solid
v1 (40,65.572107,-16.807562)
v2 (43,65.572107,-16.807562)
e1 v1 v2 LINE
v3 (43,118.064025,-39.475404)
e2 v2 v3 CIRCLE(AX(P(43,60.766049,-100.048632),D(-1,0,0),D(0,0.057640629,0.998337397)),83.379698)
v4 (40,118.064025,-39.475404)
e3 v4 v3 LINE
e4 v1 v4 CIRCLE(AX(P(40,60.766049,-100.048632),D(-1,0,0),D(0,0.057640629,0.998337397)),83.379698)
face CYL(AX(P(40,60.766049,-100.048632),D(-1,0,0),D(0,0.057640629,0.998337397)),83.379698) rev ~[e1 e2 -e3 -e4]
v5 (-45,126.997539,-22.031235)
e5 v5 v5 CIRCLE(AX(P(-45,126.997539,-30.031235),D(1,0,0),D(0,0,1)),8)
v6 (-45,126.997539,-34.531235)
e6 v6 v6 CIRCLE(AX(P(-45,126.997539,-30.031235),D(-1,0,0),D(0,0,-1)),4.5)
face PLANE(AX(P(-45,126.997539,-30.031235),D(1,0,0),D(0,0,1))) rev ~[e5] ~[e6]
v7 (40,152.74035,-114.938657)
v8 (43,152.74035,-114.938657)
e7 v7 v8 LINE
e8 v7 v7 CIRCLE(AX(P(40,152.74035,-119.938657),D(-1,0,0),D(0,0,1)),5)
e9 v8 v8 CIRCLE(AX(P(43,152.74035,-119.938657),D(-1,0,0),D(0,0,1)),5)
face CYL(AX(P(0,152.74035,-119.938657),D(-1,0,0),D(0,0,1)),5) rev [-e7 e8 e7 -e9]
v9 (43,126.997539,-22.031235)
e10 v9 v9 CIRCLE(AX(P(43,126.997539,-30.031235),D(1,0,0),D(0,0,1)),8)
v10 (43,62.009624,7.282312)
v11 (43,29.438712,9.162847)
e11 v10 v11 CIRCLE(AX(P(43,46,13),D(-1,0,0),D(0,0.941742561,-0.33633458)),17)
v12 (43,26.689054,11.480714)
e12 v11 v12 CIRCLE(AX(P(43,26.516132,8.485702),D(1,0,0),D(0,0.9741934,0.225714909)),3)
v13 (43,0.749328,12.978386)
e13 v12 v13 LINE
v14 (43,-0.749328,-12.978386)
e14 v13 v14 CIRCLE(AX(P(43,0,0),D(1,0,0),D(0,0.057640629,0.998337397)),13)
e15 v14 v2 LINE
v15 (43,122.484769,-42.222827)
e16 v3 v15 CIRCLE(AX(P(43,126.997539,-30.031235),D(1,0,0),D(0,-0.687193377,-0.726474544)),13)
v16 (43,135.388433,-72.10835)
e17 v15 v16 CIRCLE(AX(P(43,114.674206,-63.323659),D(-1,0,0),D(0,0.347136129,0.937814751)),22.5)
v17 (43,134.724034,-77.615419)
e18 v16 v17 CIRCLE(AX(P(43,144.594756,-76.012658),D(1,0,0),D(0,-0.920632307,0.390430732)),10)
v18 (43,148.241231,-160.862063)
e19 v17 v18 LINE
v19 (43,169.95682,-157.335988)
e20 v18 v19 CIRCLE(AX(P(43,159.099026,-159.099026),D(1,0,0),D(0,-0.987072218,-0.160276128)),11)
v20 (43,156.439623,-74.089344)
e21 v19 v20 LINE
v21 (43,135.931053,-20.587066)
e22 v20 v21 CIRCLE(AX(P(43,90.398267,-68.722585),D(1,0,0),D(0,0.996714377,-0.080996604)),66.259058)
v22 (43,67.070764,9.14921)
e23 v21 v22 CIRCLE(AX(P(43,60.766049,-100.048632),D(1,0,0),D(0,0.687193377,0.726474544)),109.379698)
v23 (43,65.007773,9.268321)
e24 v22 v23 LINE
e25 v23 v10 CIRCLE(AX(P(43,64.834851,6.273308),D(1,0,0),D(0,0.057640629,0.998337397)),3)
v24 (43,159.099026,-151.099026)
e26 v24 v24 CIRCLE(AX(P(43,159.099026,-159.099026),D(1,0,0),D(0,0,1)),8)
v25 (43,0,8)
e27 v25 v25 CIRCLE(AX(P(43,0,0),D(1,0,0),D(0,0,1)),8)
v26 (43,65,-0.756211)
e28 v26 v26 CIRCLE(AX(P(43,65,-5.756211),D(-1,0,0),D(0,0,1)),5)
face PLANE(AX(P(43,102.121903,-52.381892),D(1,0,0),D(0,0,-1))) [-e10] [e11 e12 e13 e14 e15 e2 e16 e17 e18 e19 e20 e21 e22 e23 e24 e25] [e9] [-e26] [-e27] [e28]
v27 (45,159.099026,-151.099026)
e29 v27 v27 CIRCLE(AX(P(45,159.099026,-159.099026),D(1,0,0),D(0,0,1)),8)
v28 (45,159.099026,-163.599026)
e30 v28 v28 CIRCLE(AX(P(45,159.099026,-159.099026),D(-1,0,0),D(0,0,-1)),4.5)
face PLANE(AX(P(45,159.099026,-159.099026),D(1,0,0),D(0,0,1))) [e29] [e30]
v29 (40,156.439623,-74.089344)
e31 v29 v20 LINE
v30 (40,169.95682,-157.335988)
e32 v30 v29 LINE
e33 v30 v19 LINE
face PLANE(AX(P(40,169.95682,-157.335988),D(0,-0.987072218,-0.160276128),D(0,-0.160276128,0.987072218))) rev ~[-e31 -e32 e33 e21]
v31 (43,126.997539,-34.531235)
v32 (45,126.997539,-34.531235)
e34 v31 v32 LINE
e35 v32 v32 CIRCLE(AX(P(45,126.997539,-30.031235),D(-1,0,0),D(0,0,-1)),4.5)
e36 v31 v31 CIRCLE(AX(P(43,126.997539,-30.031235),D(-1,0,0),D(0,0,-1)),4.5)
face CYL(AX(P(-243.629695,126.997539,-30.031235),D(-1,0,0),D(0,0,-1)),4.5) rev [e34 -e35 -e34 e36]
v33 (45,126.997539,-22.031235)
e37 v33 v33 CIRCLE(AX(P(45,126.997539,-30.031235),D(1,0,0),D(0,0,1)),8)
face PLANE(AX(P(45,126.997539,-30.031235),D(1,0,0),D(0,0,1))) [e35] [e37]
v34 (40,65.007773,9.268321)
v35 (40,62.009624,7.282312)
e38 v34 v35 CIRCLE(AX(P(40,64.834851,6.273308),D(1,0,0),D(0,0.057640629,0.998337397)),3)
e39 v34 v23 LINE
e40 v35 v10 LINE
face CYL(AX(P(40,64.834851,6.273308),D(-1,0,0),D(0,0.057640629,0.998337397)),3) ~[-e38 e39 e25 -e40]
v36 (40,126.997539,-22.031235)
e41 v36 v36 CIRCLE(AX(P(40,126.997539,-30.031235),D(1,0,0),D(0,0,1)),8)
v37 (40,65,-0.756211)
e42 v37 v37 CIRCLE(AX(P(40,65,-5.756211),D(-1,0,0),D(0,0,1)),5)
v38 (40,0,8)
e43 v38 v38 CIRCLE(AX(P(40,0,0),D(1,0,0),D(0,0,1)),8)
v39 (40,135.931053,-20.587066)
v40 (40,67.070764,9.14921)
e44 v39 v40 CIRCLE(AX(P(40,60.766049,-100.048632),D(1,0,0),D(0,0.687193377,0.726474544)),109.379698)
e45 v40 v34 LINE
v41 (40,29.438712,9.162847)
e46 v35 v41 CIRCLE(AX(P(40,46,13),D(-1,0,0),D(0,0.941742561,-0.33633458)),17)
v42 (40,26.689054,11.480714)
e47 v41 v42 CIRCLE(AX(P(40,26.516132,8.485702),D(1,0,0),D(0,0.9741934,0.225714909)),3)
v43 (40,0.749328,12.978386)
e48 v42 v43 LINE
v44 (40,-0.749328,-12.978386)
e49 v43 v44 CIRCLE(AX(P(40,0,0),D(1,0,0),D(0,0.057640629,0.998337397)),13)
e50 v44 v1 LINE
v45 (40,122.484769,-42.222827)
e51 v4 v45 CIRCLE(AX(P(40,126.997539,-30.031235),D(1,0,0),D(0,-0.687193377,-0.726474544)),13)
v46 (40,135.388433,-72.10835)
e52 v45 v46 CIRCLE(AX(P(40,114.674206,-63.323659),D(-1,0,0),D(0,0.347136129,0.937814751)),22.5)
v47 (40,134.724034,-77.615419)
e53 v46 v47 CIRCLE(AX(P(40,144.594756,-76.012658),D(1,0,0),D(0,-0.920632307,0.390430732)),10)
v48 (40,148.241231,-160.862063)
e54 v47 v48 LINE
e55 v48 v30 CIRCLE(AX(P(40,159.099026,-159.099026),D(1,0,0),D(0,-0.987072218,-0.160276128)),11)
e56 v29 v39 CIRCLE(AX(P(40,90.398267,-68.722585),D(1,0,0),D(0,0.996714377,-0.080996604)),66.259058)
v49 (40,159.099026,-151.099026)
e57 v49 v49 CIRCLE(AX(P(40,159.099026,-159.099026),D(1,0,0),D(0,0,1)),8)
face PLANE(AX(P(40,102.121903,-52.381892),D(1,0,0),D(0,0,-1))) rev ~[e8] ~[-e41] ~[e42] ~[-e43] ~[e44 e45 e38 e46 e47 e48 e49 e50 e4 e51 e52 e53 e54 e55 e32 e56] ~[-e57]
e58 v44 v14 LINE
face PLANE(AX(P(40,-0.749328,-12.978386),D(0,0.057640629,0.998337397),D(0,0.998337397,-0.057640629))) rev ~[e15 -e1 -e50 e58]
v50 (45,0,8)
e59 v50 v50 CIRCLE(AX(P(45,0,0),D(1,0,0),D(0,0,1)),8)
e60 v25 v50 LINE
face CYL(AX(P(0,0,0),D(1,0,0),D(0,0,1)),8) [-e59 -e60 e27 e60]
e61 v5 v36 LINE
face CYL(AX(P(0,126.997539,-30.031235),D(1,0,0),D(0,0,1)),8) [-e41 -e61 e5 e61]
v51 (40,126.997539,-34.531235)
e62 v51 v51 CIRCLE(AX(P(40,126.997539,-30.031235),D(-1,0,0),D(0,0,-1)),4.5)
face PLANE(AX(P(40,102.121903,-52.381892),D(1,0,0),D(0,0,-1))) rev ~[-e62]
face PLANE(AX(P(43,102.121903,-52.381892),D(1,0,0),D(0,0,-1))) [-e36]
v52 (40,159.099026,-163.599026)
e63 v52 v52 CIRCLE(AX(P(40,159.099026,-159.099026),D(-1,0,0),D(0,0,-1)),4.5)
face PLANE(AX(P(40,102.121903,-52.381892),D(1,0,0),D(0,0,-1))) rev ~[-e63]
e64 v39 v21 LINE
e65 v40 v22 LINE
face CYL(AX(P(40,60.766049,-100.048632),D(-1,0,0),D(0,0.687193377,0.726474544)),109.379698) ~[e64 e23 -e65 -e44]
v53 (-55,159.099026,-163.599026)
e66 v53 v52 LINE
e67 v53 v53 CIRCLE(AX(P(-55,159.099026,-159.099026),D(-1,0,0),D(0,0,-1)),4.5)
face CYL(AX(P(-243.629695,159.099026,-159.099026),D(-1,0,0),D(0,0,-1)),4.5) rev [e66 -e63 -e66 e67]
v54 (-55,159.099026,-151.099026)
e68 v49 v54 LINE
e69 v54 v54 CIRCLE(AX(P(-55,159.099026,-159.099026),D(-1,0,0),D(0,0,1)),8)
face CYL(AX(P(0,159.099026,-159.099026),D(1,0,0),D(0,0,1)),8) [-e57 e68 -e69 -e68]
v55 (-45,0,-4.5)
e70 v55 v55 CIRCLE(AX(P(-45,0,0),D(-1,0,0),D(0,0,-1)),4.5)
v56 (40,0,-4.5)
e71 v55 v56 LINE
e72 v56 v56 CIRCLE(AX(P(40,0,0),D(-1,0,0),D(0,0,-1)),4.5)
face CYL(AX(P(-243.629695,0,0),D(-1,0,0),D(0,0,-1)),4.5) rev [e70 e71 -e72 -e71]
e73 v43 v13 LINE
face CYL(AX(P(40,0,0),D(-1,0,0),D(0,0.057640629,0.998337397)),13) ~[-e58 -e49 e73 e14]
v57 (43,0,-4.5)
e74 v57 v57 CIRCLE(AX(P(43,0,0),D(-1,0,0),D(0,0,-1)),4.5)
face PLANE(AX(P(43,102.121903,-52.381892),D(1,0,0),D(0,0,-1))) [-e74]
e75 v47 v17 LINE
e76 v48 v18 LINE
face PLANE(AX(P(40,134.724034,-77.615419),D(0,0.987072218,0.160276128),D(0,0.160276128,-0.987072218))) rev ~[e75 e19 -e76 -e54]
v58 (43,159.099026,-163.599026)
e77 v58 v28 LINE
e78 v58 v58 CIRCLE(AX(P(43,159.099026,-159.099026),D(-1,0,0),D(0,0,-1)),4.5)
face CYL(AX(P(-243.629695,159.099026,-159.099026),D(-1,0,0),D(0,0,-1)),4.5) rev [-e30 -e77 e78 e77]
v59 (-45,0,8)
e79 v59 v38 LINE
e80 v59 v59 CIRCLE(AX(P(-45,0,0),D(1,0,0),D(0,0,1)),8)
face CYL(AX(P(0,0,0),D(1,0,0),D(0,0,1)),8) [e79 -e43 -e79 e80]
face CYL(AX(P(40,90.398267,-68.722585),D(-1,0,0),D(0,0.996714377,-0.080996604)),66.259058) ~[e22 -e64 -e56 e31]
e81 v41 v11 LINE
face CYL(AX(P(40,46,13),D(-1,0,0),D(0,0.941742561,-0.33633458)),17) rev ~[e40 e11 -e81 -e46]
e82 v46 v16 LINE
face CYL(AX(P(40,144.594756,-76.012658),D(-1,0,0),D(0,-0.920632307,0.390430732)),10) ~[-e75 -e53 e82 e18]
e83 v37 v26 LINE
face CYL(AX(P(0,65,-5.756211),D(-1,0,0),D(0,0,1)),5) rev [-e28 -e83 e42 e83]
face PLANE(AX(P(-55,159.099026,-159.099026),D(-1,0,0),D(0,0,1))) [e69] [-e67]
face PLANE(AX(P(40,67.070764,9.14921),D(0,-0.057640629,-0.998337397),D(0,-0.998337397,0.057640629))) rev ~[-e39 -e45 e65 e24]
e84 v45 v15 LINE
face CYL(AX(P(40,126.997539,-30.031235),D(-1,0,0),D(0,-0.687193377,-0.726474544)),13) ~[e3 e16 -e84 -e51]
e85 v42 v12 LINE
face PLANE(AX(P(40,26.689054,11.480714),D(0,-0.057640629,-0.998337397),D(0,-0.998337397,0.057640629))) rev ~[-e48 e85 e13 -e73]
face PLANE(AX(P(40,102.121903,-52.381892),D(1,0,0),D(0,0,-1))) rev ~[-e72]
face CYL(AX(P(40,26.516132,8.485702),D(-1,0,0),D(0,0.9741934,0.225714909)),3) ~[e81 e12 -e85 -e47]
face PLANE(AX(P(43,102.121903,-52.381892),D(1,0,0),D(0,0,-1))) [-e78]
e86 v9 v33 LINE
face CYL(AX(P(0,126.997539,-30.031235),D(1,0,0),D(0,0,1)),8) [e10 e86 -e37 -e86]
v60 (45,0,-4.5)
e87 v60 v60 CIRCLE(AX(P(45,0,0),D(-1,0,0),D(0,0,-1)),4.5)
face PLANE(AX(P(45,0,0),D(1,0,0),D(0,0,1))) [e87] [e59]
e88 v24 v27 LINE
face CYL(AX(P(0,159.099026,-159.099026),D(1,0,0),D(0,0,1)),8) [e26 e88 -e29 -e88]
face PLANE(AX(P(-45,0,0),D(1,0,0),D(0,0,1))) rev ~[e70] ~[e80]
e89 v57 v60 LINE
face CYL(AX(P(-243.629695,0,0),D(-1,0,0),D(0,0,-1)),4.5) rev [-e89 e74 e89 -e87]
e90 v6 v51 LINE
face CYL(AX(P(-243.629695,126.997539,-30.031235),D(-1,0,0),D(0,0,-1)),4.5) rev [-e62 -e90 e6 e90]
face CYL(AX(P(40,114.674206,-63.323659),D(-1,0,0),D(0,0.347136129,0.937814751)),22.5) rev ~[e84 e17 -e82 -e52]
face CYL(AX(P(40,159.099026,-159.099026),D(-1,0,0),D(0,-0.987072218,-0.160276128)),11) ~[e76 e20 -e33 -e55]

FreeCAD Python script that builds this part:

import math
import FreeCAD as App
import Part
import Sketcher

V = App.Vector

doc = App.newDocument("Part")
body = doc.addObject("PartDesign::Body", "Body")

sketch1 = doc.addObject("Sketcher::SketchObject", "Sketch")
body.addObject(sketch1)
sketch1.AttachmentSupport = (doc.YZ_Plane, [""])
sketch1.MapMode = "FlatFace"
sketch1.addGeometry(Part.Circle(V(0, 0, 0), V(0, 0, 1), 8), False)
sketch1.addConstraint([
    Sketcher.Constraint("Coincident", 0, 3, -1, 1),
    Sketcher.Constraint("Diameter", 0, 16.0),
])
pad1 = doc.addObject("PartDesign::Pad", "Pad")
body.addObject(pad1)
pad1.Profile = sketch1
pad1.Length = 90
pad1.Midplane = True
body2 = doc.addObject("PartDesign::Body", "Body001")

sketch2 = doc.addObject("Sketcher::SketchObject", "Sketch001")
body2.addObject(sketch2)
sketch2.AttachmentSupport = (doc.getObject("YZ_Plane001"), [""])
sketch2.MapMode = "FlatFace"
sketch2.addGeometry(Part.Circle(V(127, -30, 0), V(0, 0, 1), 8), False)
sketch2.addConstraint([
    Sketcher.Constraint("Diameter", 0, 16.0),
    Sketcher.Constraint("DistanceX", -1, 1, 0, 3, 126.997539),
    Sketcher.Constraint("DistanceY", 0, 3, -1, 1, 30.031235),
])
pad2 = doc.addObject("PartDesign::Pad", "Pad001")
body2.addObject(pad2)
pad2.Profile = sketch2
pad2.Length = 90
pad2.Midplane = True
body3 = doc.addObject("PartDesign::Body", "Body002")

sketch3 = doc.addObject("Sketcher::SketchObject", "Sketch002")
body3.addObject(sketch3)
sketch3.AttachmentSupport = (doc.getObject("YZ_Plane002"), [""])
sketch3.MapMode = "FlatFace"
sketch3.addGeometry(Part.Circle(V(159, -159, 0), V(0, 0, 1), 8), False)
sketch3.addConstraint([
    Sketcher.Constraint("Diameter", 0, 16.0),
    Sketcher.Constraint("DistanceX", -1, 1, 0, 3, 159.099026),
    Sketcher.Constraint("DistanceY", 0, 3, -1, 1, 159.099026),
])
pad3 = doc.addObject("PartDesign::Pad", "Pad002")
body3.addObject(pad3)
pad3.Profile = sketch3
pad3.Length = 90
pad3.Midplane = True

sketch4 = doc.addObject("Sketcher::SketchObject", "Sketch003")
body3.addObject(sketch4)
sketch4.AttachmentSupport = (doc.getObject("YZ_Plane002"), [""])
sketch4.MapMode = "FlatFace"
sketch4.AttachmentOffset = App.Placement(V(0, 0, -45), App.Rotation())
sketch4.addGeometry(Part.Circle(V(159, -159, 0), V(0, 0, 1), 8), False)
sketch4.addConstraint([
    Sketcher.Constraint("Diameter", 0, 16.0),
    Sketcher.Constraint("DistanceX", -1, 1, 0, 3, 159.099026),
    Sketcher.Constraint("DistanceY", 0, 3, -1, 1, 159.099026),
])
pad4 = doc.addObject("PartDesign::Pad", "Pad003")
body3.addObject(pad4)
pad4.Profile = sketch4
pad4.Length = 10
pad4.Reversed = True
body4 = doc.addObject("PartDesign::Body", "Body003")
body4.AllowCompound = True

sketch5 = doc.addObject("Sketcher::SketchObject", "Sketch004")
body4.addObject(sketch5)
sketch5.AttachmentSupport = (doc.getObject("YZ_Plane003"), [""])
sketch5.MapMode = "FlatFace"
sketch5.addGeometry([
    Part.Circle(V(0, 0, 0), V(0, 0, 1), 4.5),
    Part.Circle(V(127, -30, 0), V(0, 0, 1), 4.5),
    Part.Circle(V(159.1, -159.1, 0), V(0, 0, 1), 4.5),
], False)
sketch5.addConstraint([
    Sketcher.Constraint("Coincident", 0, 3, -1, 1),
    Sketcher.Constraint("Equal", 0, 1),
    Sketcher.Constraint("Equal", 1, 2),
    Sketcher.Constraint("Diameter", 0, 9.0),
    Sketcher.Constraint("DistanceX", -1, 1, 1, 3, 126.997539),
    Sketcher.Constraint("DistanceY", 2, 3, 1, 3, 129.067791),
    Sketcher.Constraint("DistanceY", 1, 3, -1, 1, 30.031235),
    Sketcher.Constraint("DistanceX", -1, 1, 2, 3, 159.099026),
])
pad5 = doc.addObject("PartDesign::Pad", "Pad004")
body4.addObject(pad5)
pad5.Profile = sketch5
pad5.Type = "TwoLengths"
pad5.Length = 243.629695
pad5.Length2 = 243.629695
doc.recompute()

body5 = doc.addObject("PartDesign::Body", "Body004")
body5.BaseFeature = body4
boolean = doc.addObject("PartDesign::Boolean", "Boolean")
body.addObject(boolean)
boolean.Type = "Cut"
boolean.addObjects([body5])
doc.recompute()

body6 = doc.addObject("PartDesign::Body", "Body005")
body6.BaseFeature = body4
boolean2 = doc.addObject("PartDesign::Boolean", "Boolean001")
body2.addObject(boolean2)
boolean2.Type = "Cut"
boolean2.addObjects([body6])
doc.recompute()

boolean3 = doc.addObject("PartDesign::Boolean", "Boolean002")
body3.addObject(boolean3)
boolean3.Type = "Cut"
boolean3.addObjects([body4])
body.AllowCompound = True
doc.recompute()

boolean4 = doc.addObject("PartDesign::Boolean", "Boolean003")
body.addObject(boolean4)
boolean4.Type = "Fuse"
boolean4.addObjects([body2])
doc.recompute()

boolean5 = doc.addObject("PartDesign::Boolean", "Boolean004")
body.addObject(boolean5)
boolean5.Type = "Fuse"
boolean5.addObjects([body3])

sketch6 = doc.addObject("Sketcher::SketchObject", "Sketch005")
body.addObject(sketch6)
sketch6.AttachmentSupport = (doc.YZ_Plane, [""])
sketch6.MapMode = "FlatFace"
sketch6.AttachmentOffset = App.Placement(V(0, 0, 40), App.Rotation())
sketch6.addGeometry([
    Part.LineSegment(V(-0.749328, -12.978386, 0), V(65.572107, -16.807562, 0)),
    Part.ArcOfCircle(Part.Circle(V(60.766049, -100.048632, 0), V(0, 0, 1), 83.379698), math.radians(46.591651), math.radians(86.695604)),
    Part.ArcOfCircle(Part.Circle(V(126.997539, -30.031235, 0), V(0, 0, 1), 13), math.radians(-133.408349), math.radians(-110.312248)),
    Part.ArcOfCircle(Part.Circle(V(114.674206, -63.323659, 0), V(0, 0, 1), 22.5), math.radians(-22.981303), math.radians(69.687752)),
    Part.ArcOfCircle(Part.Circle(V(144.594756, -76.012658, 0), V(0, 0, 1), 10), math.radians(157.018697), math.radians(189.222924)),
    Part.LineSegment(V(134.724034, -77.615419, 0), V(148.241231, -160.862063, 0)),
    Part.ArcOfCircle(Part.Circle(V(159.099026, -159.099026, 0), V(0, 0, 1), 11), math.radians(-170.777076), math.radians(9.222924)),
    Part.LineSegment(V(169.95682, -157.335988, 0), V(156.439623, -74.089344, 0)),
    Part.ArcOfCircle(Part.Circle(V(90.398267, -68.722585, 0), V(0, 0, 1), 66.259058), math.radians(-4.645853), math.radians(46.591651)),
    Part.ArcOfCircle(Part.Circle(V(60.766049, -100.048632, 0), V(0, 0, 1), 109.379698), math.radians(46.591651), math.radians(86.695604)),
    Part.LineSegment(V(67.070764, 9.14921, 0), V(65.007773, 9.268321, 0)),
    Part.ArcOfCircle(Part.Circle(V(64.834851, 6.273308, 0), V(0, 0, 1), 3), math.radians(86.695604), math.radians(160.346286)),
    Part.ArcOfCircle(Part.Circle(V(46, 13, 0), V(0, 0, 1), 17), math.radians(-166.955079), math.radians(-19.653713)),
    Part.ArcOfCircle(Part.Circle(V(26.516132, 8.485702, 0), V(0, 0, 1), 3), math.radians(13.044921), math.radians(86.695604)),
    Part.LineSegment(V(26.689054, 11.480714, 0), V(0.749328, 12.978386, 0)),
    Part.ArcOfCircle(Part.Circle(V(0, 0, 0), V(0, 0, 1), 13), math.radians(86.695604), math.radians(266.695604)),
], False)
sketch6.addConstraint([
    Sketcher.Constraint("Coincident", 0, 2, 1, 2),
    Sketcher.Constraint("Coincident", 1, 1, 2, 1),
    Sketcher.Constraint("Coincident", 2, 2, 3, 2),
    Sketcher.Constraint("Coincident", 3, 1, 4, 1),
    Sketcher.Constraint("Coincident", 4, 2, 5, 1),
    Sketcher.Constraint("Coincident", 5, 2, 6, 1),
    Sketcher.Constraint("Coincident", 6, 2, 7, 1),
    Sketcher.Constraint("Coincident", 7, 2, 8, 1),
    Sketcher.Constraint("Coincident", 8, 2, 9, 1),
    Sketcher.Constraint("Coincident", 9, 2, 10, 1),
    Sketcher.Constraint("Coincident", 10, 2, 11, 1),
    Sketcher.Constraint("Coincident", 11, 2, 12, 2),
    Sketcher.Constraint("Coincident", 12, 1, 13, 1),
    Sketcher.Constraint("Coincident", 13, 2, 14, 1),
    Sketcher.Constraint("Coincident", 14, 2, 15, 1),
    Sketcher.Constraint("Coincident", 15, 2, 0, 1),
    Sketcher.Constraint("Coincident", 15, 3, -1, 1),
    Sketcher.Constraint("Coincident", 9, 3, 1, 3),
    Sketcher.Constraint("Radius", 2, 13.0),
    Sketcher.Constraint("Radius", 4, 10.0),
    Sketcher.Constraint("Radius", 6, 11.0),
    Sketcher.Constraint("Radius", 11, 3.0),
    Sketcher.Constraint("Radius", 12, 17.0),
    Sketcher.Constraint("Radius", 13, 3.0),
    Sketcher.Constraint("Radius", 15, 13.0),
    Sketcher.Constraint("Radius", 3, 22.5),
    Sketcher.Constraint("DistanceX", -1, 1, 12, 3, 46.0),
    Sketcher.Constraint("DistanceY", -1, 1, 12, 3, 13.0),
    Sketcher.Constraint("Radius", 8, 66.259058),
    Sketcher.Constraint("Radius", 1, 83.379698),
    Sketcher.Constraint("Radius", 9, 109.379698),
    Sketcher.Constraint("DistanceY", 4, 3, 3, 3, 12.688999),
    Sketcher.Constraint("DistanceY", -1, 1, 13, 3, 8.485702),
    Sketcher.Constraint("DistanceX", 4, 2, 3, 1, 0.664399),
    Sketcher.Constraint("DistanceX", 3, 1, 5, 2, 12.852798),
    Sketcher.Constraint("DistanceY", 11, 2, 9, 2, 1.866898),
    Sketcher.Constraint("DistanceY", 11, 2, 13, 2, 4.198402),
    Sketcher.Constraint("DistanceY", 15, 2, 13, 2, 24.4591),
    Sketcher.Constraint("DistanceX", -1, 1, 1, 3, 60.766049),
    Sketcher.Constraint("DistanceX", -1, 1, 2, 3, 126.997539),
    Sketcher.Constraint("DistanceY", 3, 3, -1, 1, 63.323659),
    Sketcher.Constraint("DistanceX", -1, 1, 11, 3, 64.834851),
    Sketcher.Constraint("DistanceY", 0, 2, -1, 1, 16.807562),
    Sketcher.Constraint("DistanceX", -1, 1, 2, 2, 122.484769),
    Sketcher.Constraint("DistanceY", 3, 1, -1, 1, 72.10835),
    Sketcher.Constraint("DistanceX", -1, 1, 5, 2, 148.241231),
    Sketcher.Constraint("DistanceX", -1, 1, 6, 2, 169.95682),
    Sketcher.Constraint("DistanceY", 6, 2, -1, 1, 157.335988),
    Sketcher.Constraint("DistanceY", -1, 1, 9, 2, 9.14921),
    Sketcher.Constraint("DistanceY", -1, 1, 10, 2, 9.268321),
    Sketcher.Constraint("DistanceX", -1, 1, 14, 2, 0.749328),
    Sketcher.Constraint("DistanceX", 4, 3, 6, 3, 14.504269),
    Sketcher.Constraint("DistanceX", 8, 3, 3, 3, 24.27594),
    Sketcher.Constraint("DistanceY", 1, 1, 2, 3, 9.444169),
    Sketcher.Constraint("DistanceX", 3, 1, 7, 2, 21.05119),
    Sketcher.Constraint("DistanceY", 2, 3, 8, 2, 9.444169),
    Sketcher.Constraint("DistanceX", 13, 3, 12, 1, 2.92258),
])
pad6 = doc.addObject("PartDesign::Pad", "Pad005")
body.addObject(pad6)
pad6.Profile = sketch6
pad6.Length = 3

sketch7 = doc.addObject("Sketcher::SketchObject", "Sketch006")
body.addObject(sketch7)
sketch7.AttachmentSupport = (doc.YZ_Plane, [""])
sketch7.MapMode = "FlatFace"
sketch7.addGeometry([
    Part.Circle(V(153, -120, 0), V(0, 0, 1), 5),
    Part.Circle(V(65, -6, 0), V(0, 0, 1), 5),
], False)
sketch7.addConstraint([
    Sketcher.Constraint("Equal", 0, 1),
    Sketcher.Constraint("Diameter", 0, 10.0),
    Sketcher.Constraint("DistanceX", -1, 1, 1, 3, 65.0),
    Sketcher.Constraint("DistanceX", -1, 1, 0, 3, 152.74035),
    Sketcher.Constraint("DistanceY", 1, 3, -1, 1, 5.756211),
    Sketcher.Constraint("DistanceY", 0, 3, -1, 1, 119.938657),
])
pocket1 = doc.addObject("PartDesign::Pocket", "Pocket")
body.addObject(pocket1)
pocket1.Profile = sketch7
pocket1.Type = "ThroughAll"
pocket1.Reversed = True

doc.recompute()
